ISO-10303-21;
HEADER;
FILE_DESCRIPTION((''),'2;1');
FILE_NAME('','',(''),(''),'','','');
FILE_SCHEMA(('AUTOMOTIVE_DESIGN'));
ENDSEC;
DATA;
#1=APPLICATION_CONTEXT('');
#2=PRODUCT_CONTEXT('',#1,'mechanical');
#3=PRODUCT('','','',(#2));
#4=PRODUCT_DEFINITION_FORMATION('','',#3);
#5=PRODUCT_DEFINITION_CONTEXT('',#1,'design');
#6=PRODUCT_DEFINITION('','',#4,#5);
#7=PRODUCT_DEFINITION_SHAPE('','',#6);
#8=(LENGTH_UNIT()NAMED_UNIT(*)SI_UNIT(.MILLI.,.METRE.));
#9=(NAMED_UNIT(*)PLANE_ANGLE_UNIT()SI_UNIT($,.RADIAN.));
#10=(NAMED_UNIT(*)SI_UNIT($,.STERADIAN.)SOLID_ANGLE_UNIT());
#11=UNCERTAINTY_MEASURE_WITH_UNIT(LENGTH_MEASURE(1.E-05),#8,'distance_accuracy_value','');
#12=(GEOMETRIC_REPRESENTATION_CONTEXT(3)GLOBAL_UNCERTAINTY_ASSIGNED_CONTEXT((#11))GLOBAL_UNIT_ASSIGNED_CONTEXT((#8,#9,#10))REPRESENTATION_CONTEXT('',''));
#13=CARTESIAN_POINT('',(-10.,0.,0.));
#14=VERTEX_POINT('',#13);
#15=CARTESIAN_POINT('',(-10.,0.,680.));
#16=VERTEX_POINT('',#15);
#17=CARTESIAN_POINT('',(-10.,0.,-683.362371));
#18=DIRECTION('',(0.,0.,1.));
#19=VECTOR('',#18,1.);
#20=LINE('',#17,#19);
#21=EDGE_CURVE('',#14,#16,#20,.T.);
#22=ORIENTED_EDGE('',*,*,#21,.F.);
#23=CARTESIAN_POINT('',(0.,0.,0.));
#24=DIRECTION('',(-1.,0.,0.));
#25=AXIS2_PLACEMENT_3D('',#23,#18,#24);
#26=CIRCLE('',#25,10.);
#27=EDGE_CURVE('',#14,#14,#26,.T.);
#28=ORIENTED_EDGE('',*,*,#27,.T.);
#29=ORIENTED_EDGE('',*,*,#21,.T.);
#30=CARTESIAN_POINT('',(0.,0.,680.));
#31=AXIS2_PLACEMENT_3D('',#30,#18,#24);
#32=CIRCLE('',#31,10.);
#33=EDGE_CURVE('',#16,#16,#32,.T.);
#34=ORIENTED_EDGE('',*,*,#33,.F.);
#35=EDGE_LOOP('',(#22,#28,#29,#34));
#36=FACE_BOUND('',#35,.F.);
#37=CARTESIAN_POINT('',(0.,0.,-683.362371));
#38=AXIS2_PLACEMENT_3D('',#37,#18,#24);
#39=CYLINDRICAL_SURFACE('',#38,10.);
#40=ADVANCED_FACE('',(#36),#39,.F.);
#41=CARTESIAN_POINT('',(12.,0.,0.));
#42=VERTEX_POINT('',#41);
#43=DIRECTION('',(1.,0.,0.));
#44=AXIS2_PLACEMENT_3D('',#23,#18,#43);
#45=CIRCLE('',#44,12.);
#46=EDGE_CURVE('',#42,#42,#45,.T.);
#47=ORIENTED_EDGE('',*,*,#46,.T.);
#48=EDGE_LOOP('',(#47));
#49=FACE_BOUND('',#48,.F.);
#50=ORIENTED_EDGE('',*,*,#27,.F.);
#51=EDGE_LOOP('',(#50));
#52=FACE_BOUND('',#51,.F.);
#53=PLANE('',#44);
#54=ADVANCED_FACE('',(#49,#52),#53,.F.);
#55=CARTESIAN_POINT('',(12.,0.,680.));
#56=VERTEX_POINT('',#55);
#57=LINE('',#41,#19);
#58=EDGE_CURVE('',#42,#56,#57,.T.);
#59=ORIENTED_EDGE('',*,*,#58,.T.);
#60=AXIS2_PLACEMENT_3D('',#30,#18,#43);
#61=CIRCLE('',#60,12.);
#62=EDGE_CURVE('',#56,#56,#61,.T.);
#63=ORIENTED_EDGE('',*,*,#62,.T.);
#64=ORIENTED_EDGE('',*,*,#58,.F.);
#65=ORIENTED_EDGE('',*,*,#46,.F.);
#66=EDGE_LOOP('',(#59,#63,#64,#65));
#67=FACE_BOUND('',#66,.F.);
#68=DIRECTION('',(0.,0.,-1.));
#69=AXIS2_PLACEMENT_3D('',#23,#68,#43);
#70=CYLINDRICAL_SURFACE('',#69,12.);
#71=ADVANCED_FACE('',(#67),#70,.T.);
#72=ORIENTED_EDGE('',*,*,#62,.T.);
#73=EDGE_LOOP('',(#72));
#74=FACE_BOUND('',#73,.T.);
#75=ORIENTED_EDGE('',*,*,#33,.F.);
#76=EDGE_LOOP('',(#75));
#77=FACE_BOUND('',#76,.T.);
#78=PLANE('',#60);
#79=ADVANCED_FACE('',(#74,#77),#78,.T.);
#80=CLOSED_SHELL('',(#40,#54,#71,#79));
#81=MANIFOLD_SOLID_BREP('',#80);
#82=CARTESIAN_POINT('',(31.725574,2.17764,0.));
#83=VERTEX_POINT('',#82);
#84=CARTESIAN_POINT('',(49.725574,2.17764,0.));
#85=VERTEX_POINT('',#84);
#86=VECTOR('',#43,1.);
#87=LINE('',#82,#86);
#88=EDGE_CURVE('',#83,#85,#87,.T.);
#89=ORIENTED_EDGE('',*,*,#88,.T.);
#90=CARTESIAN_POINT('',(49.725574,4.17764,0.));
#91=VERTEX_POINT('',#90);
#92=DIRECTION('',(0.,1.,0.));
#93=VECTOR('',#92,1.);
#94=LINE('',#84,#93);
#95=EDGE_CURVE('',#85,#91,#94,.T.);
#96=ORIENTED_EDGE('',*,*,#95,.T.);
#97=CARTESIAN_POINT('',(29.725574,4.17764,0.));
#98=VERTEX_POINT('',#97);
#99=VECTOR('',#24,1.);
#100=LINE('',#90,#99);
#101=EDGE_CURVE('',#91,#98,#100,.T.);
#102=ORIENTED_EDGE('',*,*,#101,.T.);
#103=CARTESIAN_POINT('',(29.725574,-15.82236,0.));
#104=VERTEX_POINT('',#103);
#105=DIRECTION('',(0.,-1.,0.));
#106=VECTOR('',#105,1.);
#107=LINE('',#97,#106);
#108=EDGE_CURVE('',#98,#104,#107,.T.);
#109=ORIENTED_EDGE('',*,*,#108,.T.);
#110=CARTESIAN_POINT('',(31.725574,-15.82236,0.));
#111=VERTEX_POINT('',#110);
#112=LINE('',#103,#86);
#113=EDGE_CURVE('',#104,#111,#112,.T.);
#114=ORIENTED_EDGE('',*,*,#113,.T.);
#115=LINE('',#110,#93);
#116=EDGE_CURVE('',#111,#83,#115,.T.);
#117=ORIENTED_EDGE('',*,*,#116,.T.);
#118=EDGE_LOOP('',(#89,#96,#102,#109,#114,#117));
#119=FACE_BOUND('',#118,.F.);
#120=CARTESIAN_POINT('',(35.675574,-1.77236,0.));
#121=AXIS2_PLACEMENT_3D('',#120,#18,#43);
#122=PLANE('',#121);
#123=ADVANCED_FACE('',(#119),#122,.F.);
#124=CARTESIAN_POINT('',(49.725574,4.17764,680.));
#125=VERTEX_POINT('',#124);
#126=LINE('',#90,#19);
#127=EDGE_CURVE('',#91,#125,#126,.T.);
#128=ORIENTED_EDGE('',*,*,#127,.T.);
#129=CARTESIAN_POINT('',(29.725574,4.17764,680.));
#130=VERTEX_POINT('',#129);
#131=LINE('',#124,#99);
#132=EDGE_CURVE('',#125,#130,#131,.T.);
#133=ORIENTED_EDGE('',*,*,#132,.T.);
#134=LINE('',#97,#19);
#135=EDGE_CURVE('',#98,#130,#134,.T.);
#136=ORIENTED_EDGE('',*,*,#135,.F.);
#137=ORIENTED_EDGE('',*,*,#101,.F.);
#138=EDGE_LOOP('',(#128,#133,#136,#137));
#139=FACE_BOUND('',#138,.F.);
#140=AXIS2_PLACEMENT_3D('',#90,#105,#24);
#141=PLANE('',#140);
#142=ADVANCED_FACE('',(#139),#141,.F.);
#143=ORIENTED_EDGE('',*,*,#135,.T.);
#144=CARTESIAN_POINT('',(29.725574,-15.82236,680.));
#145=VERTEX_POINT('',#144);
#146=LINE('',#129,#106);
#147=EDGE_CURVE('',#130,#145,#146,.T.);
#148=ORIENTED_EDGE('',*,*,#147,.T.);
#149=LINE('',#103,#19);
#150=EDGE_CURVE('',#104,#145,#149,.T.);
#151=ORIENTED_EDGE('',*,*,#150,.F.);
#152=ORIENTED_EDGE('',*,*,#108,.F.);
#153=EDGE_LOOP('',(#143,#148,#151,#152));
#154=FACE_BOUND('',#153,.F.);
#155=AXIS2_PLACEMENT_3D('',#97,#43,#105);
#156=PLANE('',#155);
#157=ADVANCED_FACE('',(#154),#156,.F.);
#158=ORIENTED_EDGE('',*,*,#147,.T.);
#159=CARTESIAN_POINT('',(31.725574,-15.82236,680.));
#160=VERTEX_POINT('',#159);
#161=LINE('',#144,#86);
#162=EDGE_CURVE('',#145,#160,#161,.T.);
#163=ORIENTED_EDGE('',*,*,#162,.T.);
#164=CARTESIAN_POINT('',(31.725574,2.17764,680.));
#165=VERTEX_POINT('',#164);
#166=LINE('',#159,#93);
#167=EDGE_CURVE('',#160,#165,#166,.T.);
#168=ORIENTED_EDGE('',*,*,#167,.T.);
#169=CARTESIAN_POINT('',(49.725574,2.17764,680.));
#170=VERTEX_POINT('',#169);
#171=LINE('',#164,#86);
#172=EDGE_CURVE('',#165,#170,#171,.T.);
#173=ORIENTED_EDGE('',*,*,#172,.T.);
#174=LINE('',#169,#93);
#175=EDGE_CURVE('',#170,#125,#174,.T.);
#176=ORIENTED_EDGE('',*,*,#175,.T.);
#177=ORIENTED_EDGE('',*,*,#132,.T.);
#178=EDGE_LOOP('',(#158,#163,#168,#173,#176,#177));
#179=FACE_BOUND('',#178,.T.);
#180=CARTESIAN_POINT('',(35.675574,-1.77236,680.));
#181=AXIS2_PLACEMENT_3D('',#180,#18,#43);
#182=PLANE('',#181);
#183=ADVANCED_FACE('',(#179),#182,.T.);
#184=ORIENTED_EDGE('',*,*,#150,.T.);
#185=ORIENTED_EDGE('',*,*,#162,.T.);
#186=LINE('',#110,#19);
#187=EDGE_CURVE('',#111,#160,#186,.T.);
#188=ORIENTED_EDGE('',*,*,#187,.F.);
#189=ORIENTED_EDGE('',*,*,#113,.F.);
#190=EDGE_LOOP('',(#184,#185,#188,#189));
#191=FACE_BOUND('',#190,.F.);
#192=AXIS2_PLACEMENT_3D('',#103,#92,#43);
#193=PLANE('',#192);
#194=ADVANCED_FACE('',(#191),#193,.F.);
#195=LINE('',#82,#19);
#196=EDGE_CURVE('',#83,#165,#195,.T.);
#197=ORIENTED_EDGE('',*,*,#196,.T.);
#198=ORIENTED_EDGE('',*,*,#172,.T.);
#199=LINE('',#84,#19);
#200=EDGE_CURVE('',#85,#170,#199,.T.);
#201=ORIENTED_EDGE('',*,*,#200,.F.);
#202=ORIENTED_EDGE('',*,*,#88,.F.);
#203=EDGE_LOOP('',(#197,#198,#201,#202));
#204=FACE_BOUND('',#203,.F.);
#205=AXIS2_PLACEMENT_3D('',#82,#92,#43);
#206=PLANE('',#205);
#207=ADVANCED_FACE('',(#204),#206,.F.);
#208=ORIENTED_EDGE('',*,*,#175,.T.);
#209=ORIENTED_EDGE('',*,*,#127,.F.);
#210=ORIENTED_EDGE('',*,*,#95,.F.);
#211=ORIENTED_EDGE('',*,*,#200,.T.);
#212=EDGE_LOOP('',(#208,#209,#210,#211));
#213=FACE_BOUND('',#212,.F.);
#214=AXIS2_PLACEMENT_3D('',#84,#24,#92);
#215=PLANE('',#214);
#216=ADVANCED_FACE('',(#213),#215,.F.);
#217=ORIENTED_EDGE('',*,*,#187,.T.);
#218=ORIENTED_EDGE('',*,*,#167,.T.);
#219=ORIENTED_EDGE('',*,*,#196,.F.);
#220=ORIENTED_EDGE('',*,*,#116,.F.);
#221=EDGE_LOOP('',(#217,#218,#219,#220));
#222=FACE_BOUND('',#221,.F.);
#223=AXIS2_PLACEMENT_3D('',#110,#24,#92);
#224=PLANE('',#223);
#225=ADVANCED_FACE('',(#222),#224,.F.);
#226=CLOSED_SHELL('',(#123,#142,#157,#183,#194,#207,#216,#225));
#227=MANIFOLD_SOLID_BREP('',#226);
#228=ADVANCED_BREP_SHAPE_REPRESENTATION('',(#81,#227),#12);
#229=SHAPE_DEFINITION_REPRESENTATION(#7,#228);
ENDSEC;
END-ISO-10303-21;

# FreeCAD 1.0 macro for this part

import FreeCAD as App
import Part
import Sketcher

V = App.Vector


def add_polygon(sketch, points):
    """Adds a closed chain of lines whose ends are joined by coincident constraints."""
    first, n = sketch.GeometryCount, len(points)
    for a, b in zip(points, points[1:] + points[:1]):
        sketch.addGeometry(Part.LineSegment(App.Vector(*a, 0), App.Vector(*b, 0)), False)
    for i in range(n):
        sketch.addConstraint(Sketcher.Constraint("Coincident", first + i, 2, first + (i + 1) % n, 1))

doc = App.newDocument("Part")
body = doc.addObject("PartDesign::Body", "Body")
body.AllowCompound = True

sketch1 = doc.addObject("Sketcher::SketchObject", "Sketch")
body.addObject(sketch1)
sketch1.AttachmentSupport = (doc.XY_Plane, [""])
sketch1.MapMode = "FlatFace"
sketch1.addGeometry(Part.Circle(V(0, 0, 0), V(0, 0, 1), 12), False)
add_polygon(sketch1, [(29.7, 4.2), (29.7, -15.8), (31.7, -15.8), (31.7, 2.2), (49.7, 2.2), (49.7, 4.2)])
sketch1.addConstraint([
    Sketcher.Constraint("Vertical", 1),
    Sketcher.Constraint("Horizontal", 2),
    Sketcher.Constraint("Vertical", 3),
    Sketcher.Constraint("Horizontal", 4),
    Sketcher.Constraint("Vertical", 5),
    Sketcher.Constraint("Horizontal", 6),
    Sketcher.Constraint("Coincident", 0, 3, -1, 1),
    Sketcher.Constraint("Equal", 6, 1),
    Sketcher.Constraint("Equal", 4, 3),
    Sketcher.Constraint("Diameter", 0, 24.0),
    Sketcher.Constraint("DistanceX", 2, 1, 2, 2, 2.0),
    Sketcher.Constraint("DistanceX", 4, 1, 4, 2, 18.0),
    Sketcher.Constraint("DistanceY", 1, 2, -1, 1, 15.82236),
    Sketcher.Constraint("DistanceX", -1, 1, 1, 2, 29.725574),
])
pad1 = doc.addObject("PartDesign::Pad", "Pad")
body.addObject(pad1)
pad1.Profile = sketch1
pad1.Length = 680

sketch2 = doc.addObject("Sketcher::SketchObject", "Sketch001")
body.addObject(sketch2)
sketch2.AttachmentSupport = (doc.XY_Plane, [""])
sketch2.MapMode = "FlatFace"
sketch2.addGeometry(Part.Circle(V(0, 0, 0), V(0, 0, 1), 10), False)
sketch2.addConstraint([
    Sketcher.Constraint("Coincident", 0, 3, -1, 1),
    Sketcher.Constraint("Diameter", 0, 20.0),
])
doc.recompute()
hole = doc.addObject("PartDesign::Hole", "Hole")
body.addObject(hole)
hole.Profile = sketch2
hole.ThreadType = "None"
hole.Diameter = 20
hole.DepthType = "ThroughAll"
hole.Reversed = True

doc.recompute()
